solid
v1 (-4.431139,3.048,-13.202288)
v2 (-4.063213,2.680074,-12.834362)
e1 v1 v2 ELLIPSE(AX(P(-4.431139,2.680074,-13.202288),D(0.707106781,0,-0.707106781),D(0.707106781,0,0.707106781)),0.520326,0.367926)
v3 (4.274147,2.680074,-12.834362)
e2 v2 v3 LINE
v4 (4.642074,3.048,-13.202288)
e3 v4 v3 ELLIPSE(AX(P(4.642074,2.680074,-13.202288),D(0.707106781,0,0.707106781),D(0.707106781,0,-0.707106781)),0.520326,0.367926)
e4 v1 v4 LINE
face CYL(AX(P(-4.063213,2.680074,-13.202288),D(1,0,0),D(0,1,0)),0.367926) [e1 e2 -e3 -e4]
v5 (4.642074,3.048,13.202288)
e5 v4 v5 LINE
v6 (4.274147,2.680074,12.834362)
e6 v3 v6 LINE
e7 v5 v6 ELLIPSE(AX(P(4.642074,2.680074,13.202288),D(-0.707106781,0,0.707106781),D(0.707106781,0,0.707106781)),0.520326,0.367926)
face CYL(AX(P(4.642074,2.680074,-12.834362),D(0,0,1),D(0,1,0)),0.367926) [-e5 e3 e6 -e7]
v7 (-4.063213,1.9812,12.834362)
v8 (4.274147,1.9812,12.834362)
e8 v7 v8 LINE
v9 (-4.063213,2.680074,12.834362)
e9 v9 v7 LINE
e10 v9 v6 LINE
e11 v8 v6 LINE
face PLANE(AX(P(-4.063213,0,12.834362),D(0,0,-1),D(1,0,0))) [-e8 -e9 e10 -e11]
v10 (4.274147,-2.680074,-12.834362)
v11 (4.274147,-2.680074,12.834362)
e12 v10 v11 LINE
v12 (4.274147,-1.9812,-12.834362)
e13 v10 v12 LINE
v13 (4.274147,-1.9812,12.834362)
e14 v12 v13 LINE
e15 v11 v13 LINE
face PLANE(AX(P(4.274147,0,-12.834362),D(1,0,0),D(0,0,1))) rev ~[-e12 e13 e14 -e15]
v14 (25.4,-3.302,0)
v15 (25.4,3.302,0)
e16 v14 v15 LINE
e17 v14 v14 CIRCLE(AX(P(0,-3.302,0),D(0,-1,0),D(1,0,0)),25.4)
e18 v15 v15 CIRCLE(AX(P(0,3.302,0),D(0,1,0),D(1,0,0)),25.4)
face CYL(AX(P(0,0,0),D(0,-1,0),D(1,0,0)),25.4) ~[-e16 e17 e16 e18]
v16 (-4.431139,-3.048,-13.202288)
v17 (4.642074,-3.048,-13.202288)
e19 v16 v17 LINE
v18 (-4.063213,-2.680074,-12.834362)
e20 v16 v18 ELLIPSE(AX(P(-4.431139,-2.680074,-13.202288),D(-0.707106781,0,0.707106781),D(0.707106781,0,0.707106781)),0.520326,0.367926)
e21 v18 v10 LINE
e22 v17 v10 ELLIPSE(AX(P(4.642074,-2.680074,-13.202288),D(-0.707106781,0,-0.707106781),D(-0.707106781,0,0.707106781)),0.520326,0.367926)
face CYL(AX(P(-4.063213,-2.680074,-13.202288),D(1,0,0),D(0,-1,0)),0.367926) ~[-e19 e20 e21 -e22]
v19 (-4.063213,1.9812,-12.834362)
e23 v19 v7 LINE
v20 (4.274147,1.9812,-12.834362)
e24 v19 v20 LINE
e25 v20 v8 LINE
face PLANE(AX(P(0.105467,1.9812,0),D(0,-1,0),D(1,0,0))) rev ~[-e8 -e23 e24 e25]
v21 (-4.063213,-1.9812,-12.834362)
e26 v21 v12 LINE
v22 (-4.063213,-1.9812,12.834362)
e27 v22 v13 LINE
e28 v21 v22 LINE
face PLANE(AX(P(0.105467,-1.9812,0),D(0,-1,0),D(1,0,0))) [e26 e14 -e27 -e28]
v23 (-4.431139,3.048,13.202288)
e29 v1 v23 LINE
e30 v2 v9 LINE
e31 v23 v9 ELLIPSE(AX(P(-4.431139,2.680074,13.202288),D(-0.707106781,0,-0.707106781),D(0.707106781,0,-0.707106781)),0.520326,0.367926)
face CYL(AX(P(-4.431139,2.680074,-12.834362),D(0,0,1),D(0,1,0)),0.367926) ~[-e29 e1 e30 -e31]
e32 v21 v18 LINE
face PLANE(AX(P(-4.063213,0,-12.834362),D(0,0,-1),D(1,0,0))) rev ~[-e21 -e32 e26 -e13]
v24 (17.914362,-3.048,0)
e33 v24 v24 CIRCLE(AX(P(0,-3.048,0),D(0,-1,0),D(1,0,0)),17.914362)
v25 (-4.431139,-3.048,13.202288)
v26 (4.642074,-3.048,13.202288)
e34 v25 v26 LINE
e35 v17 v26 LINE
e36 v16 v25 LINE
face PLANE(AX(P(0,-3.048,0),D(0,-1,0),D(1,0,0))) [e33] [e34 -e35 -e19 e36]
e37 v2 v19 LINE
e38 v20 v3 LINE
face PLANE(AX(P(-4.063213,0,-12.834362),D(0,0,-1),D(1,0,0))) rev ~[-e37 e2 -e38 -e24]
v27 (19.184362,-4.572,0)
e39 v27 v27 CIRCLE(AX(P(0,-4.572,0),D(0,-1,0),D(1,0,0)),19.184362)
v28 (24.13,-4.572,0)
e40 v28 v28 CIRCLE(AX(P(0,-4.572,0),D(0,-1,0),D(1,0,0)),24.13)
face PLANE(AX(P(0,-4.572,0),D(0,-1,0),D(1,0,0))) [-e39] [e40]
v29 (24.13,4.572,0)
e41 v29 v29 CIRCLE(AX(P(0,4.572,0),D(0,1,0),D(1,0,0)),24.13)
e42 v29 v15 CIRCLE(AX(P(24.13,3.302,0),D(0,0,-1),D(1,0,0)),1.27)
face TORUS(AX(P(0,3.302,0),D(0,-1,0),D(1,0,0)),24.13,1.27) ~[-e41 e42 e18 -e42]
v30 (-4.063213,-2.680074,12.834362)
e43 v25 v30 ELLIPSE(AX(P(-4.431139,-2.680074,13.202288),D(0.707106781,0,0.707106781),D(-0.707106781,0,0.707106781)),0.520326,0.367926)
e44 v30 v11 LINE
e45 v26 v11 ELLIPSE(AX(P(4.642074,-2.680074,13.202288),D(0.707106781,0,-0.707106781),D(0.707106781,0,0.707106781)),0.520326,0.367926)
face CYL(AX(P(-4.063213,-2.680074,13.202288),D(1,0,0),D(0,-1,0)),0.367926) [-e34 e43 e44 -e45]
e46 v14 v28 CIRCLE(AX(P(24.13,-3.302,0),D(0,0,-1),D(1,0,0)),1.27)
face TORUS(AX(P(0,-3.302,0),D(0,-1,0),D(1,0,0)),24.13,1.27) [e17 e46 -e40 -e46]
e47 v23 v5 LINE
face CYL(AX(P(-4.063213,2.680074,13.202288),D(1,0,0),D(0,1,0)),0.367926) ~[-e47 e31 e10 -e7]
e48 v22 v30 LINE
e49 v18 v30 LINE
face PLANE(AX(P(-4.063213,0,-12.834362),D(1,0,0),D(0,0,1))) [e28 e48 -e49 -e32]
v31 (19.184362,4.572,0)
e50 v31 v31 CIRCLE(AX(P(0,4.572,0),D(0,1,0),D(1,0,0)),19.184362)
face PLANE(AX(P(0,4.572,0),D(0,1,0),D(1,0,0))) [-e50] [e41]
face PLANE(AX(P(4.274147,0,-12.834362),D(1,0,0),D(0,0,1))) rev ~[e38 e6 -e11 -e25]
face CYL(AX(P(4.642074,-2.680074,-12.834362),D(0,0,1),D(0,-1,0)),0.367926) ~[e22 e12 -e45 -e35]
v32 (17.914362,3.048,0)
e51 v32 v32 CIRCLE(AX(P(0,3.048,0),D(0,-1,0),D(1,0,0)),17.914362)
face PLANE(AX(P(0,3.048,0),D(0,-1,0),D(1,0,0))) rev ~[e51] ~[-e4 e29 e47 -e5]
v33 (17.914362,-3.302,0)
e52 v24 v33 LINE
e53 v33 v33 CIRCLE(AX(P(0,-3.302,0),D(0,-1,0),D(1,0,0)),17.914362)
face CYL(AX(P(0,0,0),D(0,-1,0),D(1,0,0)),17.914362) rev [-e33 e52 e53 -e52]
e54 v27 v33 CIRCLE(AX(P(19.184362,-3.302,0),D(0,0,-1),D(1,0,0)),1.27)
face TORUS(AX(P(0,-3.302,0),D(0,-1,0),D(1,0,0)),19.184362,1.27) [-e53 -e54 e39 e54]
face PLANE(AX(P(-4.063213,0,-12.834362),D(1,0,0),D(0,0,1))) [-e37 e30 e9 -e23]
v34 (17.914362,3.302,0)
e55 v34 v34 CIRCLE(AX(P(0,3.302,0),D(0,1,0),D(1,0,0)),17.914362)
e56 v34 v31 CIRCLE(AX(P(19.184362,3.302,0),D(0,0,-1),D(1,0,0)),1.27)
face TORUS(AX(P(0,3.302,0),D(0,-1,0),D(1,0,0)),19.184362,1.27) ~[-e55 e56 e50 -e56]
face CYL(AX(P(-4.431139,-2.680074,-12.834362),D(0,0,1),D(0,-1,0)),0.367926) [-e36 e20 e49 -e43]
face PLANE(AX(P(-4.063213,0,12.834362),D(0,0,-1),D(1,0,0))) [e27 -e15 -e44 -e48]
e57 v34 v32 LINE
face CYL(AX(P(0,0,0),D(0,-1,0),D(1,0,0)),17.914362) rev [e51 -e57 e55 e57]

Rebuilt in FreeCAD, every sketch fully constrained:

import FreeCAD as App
import Part
import Sketcher
Q = App.Units.Quantity


def edges_at(feature, points):
    """Names of the edges that pass closest to the given points."""
    edges = feature.Shape.Edges
    near = lambda p: min(range(len(edges)), key=lambda i: edges[i].distToShape(Part.Vertex(*p))[0])
    return sorted({f"Edge{near(p) + 1}" for p in points})


def add_polygon(sketch, points):
    """Adds a closed chain of lines whose ends are joined by coincident constraints."""
    first, n = sketch.GeometryCount, len(points)
    for a, b in zip(points, points[1:] + points[:1]):
        sketch.addGeometry(Part.LineSegment(App.Vector(*a, 0), App.Vector(*b, 0)), False)
    for i in range(n):
        sketch.addConstraint(Sketcher.Constraint("Coincident", first + i, 2, first + (i + 1) % n, 1))

doc = App.newDocument("Part")
body = doc.addObject("PartDesign::Body", "Body")

sketch1 = doc.addObject("Sketcher::SketchObject", "Sketch")
body.addObject(sketch1)
sketch1.AttachmentSupport = (doc.XZ_Plane, [""])
sketch1.MapMode = "FlatFace"
sketch1.addGeometry([
    Part.Circle(App.Vector(0, 0, 0), App.Vector(0, 0, 1), 25),
    Part.Circle(App.Vector(0, 0, 0), App.Vector(0, 0, 1), 18),
], False)
sketch1.addConstraint([
    Sketcher.Constraint("Coincident", 0, 3, -1, 1),
    Sketcher.Constraint("Coincident", 1, 3, -1, 1),
    Sketcher.Constraint("Diameter", 0, Q("2 in")),
    Sketcher.Constraint("Diameter", 1, 35.828724),
])
pad1 = doc.addObject("PartDesign::Pad", "Pad")
body.addObject(pad1)
pad1.Profile = sketch1
pad1.Length = Q("0.18 in")

sketch2 = doc.addObject("Sketcher::SketchObject", "Sketch001")
body.addObject(sketch2)
sketch2.AttachmentSupport = (doc.XZ_Plane, [""])
sketch2.MapMode = "FlatFace"
sketch2.addGeometry([
    Part.Circle(App.Vector(0, 0, 0), App.Vector(0, 0, 1), 25),
    Part.Circle(App.Vector(0, 0, 0), App.Vector(0, 0, 1), 18),
], False)
sketch2.addConstraint([
    Sketcher.Constraint("Coincident", 0, 3, -1, 1),
    Sketcher.Constraint("Coincident", 1, 3, -1, 1),
    Sketcher.Constraint("Diameter", 0, Q("2 in")),
    Sketcher.Constraint("Diameter", 1, 35.828724),
])
pad2 = doc.addObject("PartDesign::Pad", "Pad001")
body.addObject(pad2)
pad2.Profile = sketch2
pad2.Length = Q("0.18 in")
pad2.Reversed = True

sketch3 = doc.addObject("Sketcher::SketchObject", "Sketch002")
body.addObject(sketch3)
sketch3.AttachmentSupport = (doc.XZ_Plane, [""])
sketch3.MapMode = "FlatFace"
sketch3.addGeometry(Part.Circle(App.Vector(0, 0, 0), App.Vector(0, 0, 1), 18), False)
add_polygon(sketch3, [(4, -13), (-4, -13), (-4, 13), (4, 13)])
sketch3.addConstraint([
    Sketcher.Constraint("Horizontal", 1),
    Sketcher.Constraint("Vertical", 2),
    Sketcher.Constraint("Horizontal", 3),
    Sketcher.Constraint("Vertical", 4),
    Sketcher.Constraint("Coincident", 0, 3, -1, 1),
    Sketcher.Constraint("Diameter", 0, 35.828724),
    Sketcher.Constraint("DistanceX", 1, 2, 1, 1, 8.337361),
    Sketcher.Constraint("DistanceY", 2, 1, 2, 2, 25.668724),
    Sketcher.Constraint("DistanceX", 1, 2, -1, 1, 4.063213),
    Sketcher.Constraint("DistanceY", 1, 2, -1, 1, 12.834362),
])
pad3 = doc.addObject("PartDesign::Pad", "Pad002")
body.addObject(pad3)
pad3.Profile = sketch3
pad3.Length = Q("0.12 in")

sketch4 = doc.addObject("Sketcher::SketchObject", "Sketch003")
body.addObject(sketch4)
sketch4.AttachmentSupport = (doc.XZ_Plane, [""])
sketch4.MapMode = "FlatFace"
sketch4.addGeometry(Part.Circle(App.Vector(0, 0, 0), App.Vector(0, 0, 1), 18), False)
add_polygon(sketch4, [(4, -13), (-4, -13), (-4, 13), (4, 13)])
sketch4.addConstraint([
    Sketcher.Constraint("Horizontal", 1),
    Sketcher.Constraint("Vertical", 2),
    Sketcher.Constraint("Horizontal", 3),
    Sketcher.Constraint("Vertical", 4),
    Sketcher.Constraint("Coincident", 0, 3, -1, 1),
    Sketcher.Constraint("Diameter", 0, 35.828724),
    Sketcher.Constraint("DistanceX", 1, 2, 1, 1, 8.337361),
    Sketcher.Constraint("DistanceY", 2, 1, 2, 2, 25.668724),
    Sketcher.Constraint("DistanceX", 1, 2, -1, 1, 4.063213),
    Sketcher.Constraint("DistanceY", 1, 2, -1, 1, 12.834362),
])
pad4 = doc.addObject("PartDesign::Pad", "Pad003")
body.addObject(pad4)
pad4.Profile = sketch4
pad4.Length = Q("0.12 in")
pad4.Reversed = True

sketch5 = doc.addObject("Sketcher::SketchObject", "Sketch004")
body.addObject(sketch5)
sketch5.AttachmentSupport = (doc.XZ_Plane, [""])
sketch5.MapMode = "FlatFace"
add_polygon(sketch5, [(-4, 13), (-4, -13), (4, -13), (4, 13)])
sketch5.addConstraint([
    Sketcher.Constraint("Vertical", 0),
    Sketcher.Constraint("Horizontal", 1),
    Sketcher.Constraint("Vertical", 2),
    Sketcher.Constraint("Horizontal", 3),
    Sketcher.Constraint("DistanceX", 1, 1, 1, 2, 8.337361),
    Sketcher.Constraint("DistanceY", 0, 2, 0, 1, 25.668724),
    Sketcher.Constraint("DistanceX", 0, 2, -1, 1, 4.063213),
    Sketcher.Constraint("DistanceY", 0, 2, -1, 1, 12.834362),
])
pad5 = doc.addObject("PartDesign::Pad", "Pad004")
body.addObject(pad5)
pad5.Profile = sketch5
pad5.Length = Q("0.078 in")

sketch6 = doc.addObject("Sketcher::SketchObject", "Sketch005")
body.addObject(sketch6)
sketch6.AttachmentSupport = (doc.XZ_Plane, [""])
sketch6.MapMode = "FlatFace"
add_polygon(sketch6, [(-4, 13), (-4, -13), (4, -13), (4, 13)])
sketch6.addConstraint([
    Sketcher.Constraint("Vertical", 0),
    Sketcher.Constraint("Horizontal", 1),
    Sketcher.Constraint("Vertical", 2),
    Sketcher.Constraint("Horizontal", 3),
    Sketcher.Constraint("DistanceX", 1, 1, 1, 2, 8.337361),
    Sketcher.Constraint("DistanceY", 0, 2, 0, 1, 25.668724),
    Sketcher.Constraint("DistanceX", 0, 2, -1, 1, 4.063213),
    Sketcher.Constraint("DistanceY", 0, 2, -1, 1, 12.834362),
])
pad6 = doc.addObject("PartDesign::Pad", "Pad005")
body.addObject(pad6)
pad6.Profile = sketch6
pad6.Length = Q("0.078 in")
pad6.Reversed = True
doc.recompute()

fillet = doc.addObject("PartDesign::Fillet", "Fillet")
body.addObject(fillet)
fillet.Base = (pad6, edges_at(pad6, [
    (-17.914, 4.572, 0),
    (-25.4, 4.572, 0),
    (-25.4, -4.572, 0),
    (-17.914, -4.572, 0),
]))
fillet.Radius = Q("0.05 in")
doc.recompute()

fillet2 = doc.addObject("PartDesign::Fillet", "Fillet001")
body.addObject(fillet2)
fillet2.Base = (fillet, edges_at(fillet, [
    (0.105, 3.048, -12.834),
    (4.274, 3.048, 0),
    (0.105, 3.048, 12.834),
    (-4.063, 3.048, 0),
    (-4.063, -3.048, 0),
    (0.105, -3.048, 12.834),
    (4.274, -3.048, 0),
    (0.105, -3.048, -12.834),
]))
fillet2.Radius = 0.367926

doc.recompute()
